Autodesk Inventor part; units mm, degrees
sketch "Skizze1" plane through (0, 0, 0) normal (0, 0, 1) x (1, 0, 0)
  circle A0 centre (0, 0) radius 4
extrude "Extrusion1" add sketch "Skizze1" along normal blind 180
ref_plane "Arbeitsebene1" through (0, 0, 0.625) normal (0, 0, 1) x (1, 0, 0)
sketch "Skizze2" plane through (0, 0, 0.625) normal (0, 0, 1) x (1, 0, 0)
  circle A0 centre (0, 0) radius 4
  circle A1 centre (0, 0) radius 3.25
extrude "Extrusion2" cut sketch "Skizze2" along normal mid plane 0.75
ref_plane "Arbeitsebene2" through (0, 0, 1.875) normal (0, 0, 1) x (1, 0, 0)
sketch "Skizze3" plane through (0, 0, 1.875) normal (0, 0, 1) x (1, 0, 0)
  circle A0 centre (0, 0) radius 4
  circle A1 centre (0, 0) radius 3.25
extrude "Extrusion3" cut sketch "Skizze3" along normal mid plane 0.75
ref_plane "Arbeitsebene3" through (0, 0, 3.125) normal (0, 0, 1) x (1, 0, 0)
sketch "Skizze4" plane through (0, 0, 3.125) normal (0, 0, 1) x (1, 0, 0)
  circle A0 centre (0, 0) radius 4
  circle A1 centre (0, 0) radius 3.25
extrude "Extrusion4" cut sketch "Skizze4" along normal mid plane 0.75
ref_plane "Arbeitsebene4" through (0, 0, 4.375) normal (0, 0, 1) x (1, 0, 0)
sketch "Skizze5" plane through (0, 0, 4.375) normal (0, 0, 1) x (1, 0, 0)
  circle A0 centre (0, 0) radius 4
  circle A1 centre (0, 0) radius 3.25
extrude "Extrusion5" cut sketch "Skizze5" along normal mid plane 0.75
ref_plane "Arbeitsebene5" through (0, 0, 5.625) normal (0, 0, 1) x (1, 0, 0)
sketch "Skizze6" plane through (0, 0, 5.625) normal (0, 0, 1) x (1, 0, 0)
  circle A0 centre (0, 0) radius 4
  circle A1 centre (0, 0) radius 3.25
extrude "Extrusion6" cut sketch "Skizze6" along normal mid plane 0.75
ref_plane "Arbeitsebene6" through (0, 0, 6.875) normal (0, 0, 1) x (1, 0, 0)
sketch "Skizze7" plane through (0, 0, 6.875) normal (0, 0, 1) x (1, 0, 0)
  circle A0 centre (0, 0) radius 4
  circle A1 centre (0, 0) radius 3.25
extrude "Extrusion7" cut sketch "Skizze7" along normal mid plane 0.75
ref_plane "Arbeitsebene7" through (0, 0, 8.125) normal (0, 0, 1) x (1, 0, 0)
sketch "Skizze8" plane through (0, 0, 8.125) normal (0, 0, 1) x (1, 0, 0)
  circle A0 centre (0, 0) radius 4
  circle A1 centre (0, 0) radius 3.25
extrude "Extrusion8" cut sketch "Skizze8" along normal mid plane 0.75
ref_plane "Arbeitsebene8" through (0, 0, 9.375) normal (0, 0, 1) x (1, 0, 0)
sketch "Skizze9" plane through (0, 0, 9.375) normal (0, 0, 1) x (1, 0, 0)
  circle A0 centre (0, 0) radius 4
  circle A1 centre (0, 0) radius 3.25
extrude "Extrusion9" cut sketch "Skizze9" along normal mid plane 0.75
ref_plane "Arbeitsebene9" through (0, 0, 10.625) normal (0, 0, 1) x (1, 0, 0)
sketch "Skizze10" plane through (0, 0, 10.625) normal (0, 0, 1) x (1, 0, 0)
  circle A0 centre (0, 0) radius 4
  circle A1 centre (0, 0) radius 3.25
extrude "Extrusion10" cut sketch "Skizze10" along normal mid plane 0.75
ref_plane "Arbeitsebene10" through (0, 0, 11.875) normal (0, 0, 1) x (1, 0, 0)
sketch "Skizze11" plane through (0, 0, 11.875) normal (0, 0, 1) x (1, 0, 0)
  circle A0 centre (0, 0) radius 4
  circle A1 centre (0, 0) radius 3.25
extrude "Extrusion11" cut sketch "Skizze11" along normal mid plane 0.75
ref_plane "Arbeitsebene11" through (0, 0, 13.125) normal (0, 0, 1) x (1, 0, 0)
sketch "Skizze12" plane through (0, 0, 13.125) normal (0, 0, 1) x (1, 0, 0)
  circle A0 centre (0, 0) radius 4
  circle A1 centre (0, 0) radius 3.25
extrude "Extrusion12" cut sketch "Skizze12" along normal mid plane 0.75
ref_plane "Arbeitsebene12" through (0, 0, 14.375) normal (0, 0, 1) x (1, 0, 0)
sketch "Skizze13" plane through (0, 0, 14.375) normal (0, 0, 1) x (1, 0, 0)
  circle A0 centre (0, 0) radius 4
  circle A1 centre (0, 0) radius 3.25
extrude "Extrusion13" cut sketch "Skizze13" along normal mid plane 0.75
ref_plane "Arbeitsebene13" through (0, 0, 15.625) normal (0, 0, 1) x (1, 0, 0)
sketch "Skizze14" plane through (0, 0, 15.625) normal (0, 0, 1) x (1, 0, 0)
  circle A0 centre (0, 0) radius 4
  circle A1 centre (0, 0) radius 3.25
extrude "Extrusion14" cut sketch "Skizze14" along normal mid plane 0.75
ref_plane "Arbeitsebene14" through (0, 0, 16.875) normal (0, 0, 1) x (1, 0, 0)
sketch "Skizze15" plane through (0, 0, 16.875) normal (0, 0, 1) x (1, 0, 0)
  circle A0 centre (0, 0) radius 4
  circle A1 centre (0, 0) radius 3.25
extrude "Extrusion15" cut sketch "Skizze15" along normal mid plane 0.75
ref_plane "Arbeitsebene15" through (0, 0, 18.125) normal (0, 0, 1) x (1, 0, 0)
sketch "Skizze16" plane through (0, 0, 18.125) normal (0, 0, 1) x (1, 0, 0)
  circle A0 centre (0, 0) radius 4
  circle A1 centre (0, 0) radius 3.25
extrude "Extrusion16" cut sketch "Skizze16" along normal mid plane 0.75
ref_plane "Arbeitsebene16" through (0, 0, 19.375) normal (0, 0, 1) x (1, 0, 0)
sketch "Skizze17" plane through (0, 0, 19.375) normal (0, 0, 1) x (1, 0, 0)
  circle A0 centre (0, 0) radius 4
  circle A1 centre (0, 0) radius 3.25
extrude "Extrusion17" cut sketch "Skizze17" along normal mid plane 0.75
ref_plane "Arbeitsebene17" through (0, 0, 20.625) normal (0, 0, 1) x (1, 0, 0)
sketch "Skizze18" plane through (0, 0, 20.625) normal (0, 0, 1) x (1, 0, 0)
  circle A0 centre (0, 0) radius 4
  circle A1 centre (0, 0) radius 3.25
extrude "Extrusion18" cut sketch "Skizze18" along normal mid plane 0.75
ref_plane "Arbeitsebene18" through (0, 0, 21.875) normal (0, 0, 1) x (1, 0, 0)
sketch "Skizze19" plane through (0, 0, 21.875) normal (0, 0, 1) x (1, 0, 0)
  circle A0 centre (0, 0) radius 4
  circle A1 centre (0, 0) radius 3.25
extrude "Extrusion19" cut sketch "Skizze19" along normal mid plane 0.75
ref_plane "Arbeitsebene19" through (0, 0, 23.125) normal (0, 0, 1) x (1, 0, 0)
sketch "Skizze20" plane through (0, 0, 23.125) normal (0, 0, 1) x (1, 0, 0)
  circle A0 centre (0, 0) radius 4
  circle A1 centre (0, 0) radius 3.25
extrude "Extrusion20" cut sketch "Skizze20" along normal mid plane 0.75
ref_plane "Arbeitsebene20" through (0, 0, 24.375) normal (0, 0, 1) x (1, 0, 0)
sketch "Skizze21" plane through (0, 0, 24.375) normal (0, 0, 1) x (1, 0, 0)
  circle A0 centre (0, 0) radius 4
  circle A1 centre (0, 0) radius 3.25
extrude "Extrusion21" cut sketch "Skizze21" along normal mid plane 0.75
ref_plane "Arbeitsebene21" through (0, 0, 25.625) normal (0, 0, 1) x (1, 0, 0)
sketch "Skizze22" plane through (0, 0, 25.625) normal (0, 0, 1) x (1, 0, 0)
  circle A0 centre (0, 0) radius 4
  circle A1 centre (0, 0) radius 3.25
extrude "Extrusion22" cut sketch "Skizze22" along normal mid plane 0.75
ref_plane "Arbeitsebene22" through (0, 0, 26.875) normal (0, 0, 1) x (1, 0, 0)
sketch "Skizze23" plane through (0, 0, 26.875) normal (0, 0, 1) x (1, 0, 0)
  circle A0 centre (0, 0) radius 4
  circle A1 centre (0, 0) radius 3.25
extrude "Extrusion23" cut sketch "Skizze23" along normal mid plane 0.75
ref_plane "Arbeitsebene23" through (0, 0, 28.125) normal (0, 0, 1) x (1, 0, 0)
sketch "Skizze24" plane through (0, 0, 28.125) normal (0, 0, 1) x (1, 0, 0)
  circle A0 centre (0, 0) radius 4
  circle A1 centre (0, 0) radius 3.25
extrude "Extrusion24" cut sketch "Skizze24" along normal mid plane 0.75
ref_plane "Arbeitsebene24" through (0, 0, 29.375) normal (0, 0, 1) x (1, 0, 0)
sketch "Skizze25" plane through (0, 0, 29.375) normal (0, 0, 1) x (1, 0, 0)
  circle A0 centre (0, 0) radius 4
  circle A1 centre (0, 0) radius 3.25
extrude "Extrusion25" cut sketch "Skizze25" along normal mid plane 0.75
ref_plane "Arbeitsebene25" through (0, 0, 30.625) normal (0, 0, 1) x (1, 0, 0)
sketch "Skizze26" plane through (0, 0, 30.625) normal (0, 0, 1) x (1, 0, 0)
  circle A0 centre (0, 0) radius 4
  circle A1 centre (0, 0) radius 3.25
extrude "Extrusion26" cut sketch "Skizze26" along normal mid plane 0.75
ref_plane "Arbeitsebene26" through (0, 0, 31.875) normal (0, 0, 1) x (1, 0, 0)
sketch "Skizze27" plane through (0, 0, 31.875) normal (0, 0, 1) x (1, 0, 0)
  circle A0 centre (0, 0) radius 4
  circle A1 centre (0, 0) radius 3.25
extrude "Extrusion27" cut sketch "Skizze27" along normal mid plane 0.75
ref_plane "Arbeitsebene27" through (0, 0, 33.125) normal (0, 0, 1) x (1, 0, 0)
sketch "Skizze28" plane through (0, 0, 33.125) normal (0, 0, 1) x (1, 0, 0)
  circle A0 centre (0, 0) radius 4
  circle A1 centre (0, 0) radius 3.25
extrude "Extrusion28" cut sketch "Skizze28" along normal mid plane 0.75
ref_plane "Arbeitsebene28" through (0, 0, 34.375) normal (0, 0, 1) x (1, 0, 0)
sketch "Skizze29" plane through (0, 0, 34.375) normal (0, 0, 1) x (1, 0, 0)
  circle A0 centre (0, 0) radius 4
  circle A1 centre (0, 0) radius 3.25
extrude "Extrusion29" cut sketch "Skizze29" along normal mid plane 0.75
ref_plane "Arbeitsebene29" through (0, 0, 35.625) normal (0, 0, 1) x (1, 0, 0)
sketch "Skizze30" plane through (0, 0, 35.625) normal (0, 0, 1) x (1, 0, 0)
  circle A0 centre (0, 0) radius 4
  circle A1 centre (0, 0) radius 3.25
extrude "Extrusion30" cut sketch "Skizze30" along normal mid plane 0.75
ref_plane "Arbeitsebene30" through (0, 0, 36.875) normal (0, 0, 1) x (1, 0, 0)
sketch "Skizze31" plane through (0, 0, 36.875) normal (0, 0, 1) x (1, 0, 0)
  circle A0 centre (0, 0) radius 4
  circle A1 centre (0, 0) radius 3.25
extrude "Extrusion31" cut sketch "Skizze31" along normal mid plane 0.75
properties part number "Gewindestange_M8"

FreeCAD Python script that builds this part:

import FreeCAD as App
import Part
import Sketcher

doc = App.newDocument("Part")
body = doc.addObject("PartDesign::Body", "Body")

sketch1 = body.newObject("Sketcher::SketchObject", "Sketch")
sketch1.AttachmentSupport = (doc.getObject("XY_Plane"), [""])
sketch1.MapMode = "FlatFace"
sketch1.addGeometry(Part.Circle(App.Vector(0, 0, 0), App.Vector(0, 0, 1), 4), False)
sketch1.addConstraint([
    Sketcher.Constraint("Coincident", 0, 3, -1, 1),
    Sketcher.Constraint("Diameter", 0, 8.0),
])
pad1 = body.newObject("PartDesign::Pad", "Pad")
pad1.Profile = sketch1
pad1.Length = 180

sketch2 = body.newObject("Sketcher::SketchObject", "Sketch001")
sketch2.AttachmentSupport = (doc.getObject("XY_Plane"), [""])
sketch2.MapMode = "FlatFace"
sketch2.AttachmentOffset = App.Placement(App.Vector(0, 0, 0.625), App.Rotation())
sketch2.addGeometry([
    Part.Circle(App.Vector(0, 0, 0), App.Vector(0, 0, 1), 4),
    Part.Circle(App.Vector(0, 0, 0), App.Vector(0, 0, 1), 3.2),
], False)
sketch2.addConstraint([
    Sketcher.Constraint("Coincident", 0, 3, -1, 1),
    Sketcher.Constraint("Coincident", 1, 3, -1, 1),
    Sketcher.Constraint("Diameter", 0, 8.0),
    Sketcher.Constraint("Diameter", 1, 6.5),
])
pocket1 = body.newObject("PartDesign::Pocket", "Pocket")
pocket1.Profile = sketch2
pocket1.Length = 0.75
pocket1.Midplane = True

sketch3 = body.newObject("Sketcher::SketchObject", "Sketch002")
sketch3.AttachmentSupport = (doc.getObject("XY_Plane"), [""])
sketch3.MapMode = "FlatFace"
sketch3.AttachmentOffset = App.Placement(App.Vector(0, 0, 1.875), App.Rotation())
sketch3.addGeometry([
    Part.Circle(App.Vector(0, 0, 0), App.Vector(0, 0, 1), 4),
    Part.Circle(App.Vector(0, 0, 0), App.Vector(0, 0, 1), 3.2),
], False)
sketch3.addConstraint([
    Sketcher.Constraint("Coincident", 0, 3, -1, 1),
    Sketcher.Constraint("Coincident", 1, 3, -1, 1),
    Sketcher.Constraint("Diameter", 0, 8.0),
    Sketcher.Constraint("Diameter", 1, 6.5),
])
pocket2 = body.newObject("PartDesign::Pocket", "Pocket001")
pocket2.Profile = sketch3
pocket2.Length = 0.75
pocket2.Midplane = True

sketch4 = body.newObject("Sketcher::SketchObject", "Sketch003")
sketch4.AttachmentSupport = (doc.getObject("XY_Plane"), [""])
sketch4.MapMode = "FlatFace"
sketch4.AttachmentOffset = App.Placement(App.Vector(0, 0, 3.125), App.Rotation())
sketch4.addGeometry([
    Part.Circle(App.Vector(0, 0, 0), App.Vector(0, 0, 1), 4),
    Part.Circle(App.Vector(0, 0, 0), App.Vector(0, 0, 1), 3.2),
], False)
sketch4.addConstraint([
    Sketcher.Constraint("Coincident", 0, 3, -1, 1),
    Sketcher.Constraint("Coincident", 1, 3, -1, 1),
    Sketcher.Constraint("Diameter", 0, 8.0),
    Sketcher.Constraint("Diameter", 1, 6.5),
])
pocket3 = body.newObject("PartDesign::Pocket", "Pocket002")
pocket3.Profile = sketch4
pocket3.Length = 0.75
pocket3.Midplane = True

sketch5 = body.newObject("Sketcher::SketchObject", "Sketch004")
sketch5.AttachmentSupport = (doc.getObject("XY_Plane"), [""])
sketch5.MapMode = "FlatFace"
sketch5.AttachmentOffset = App.Placement(App.Vector(0, 0, 4.375), App.Rotation())
sketch5.addGeometry([
    Part.Circle(App.Vector(0, 0, 0), App.Vector(0, 0, 1), 4),
    Part.Circle(App.Vector(0, 0, 0), App.Vector(0, 0, 1), 3.2),
], False)
sketch5.addConstraint([
    Sketcher.Constraint("Coincident", 0, 3, -1, 1),
    Sketcher.Constraint("Coincident", 1, 3, -1, 1),
    Sketcher.Constraint("Diameter", 0, 8.0),
    Sketcher.Constraint("Diameter", 1, 6.5),
])
pocket4 = body.newObject("PartDesign::Pocket", "Pocket003")
pocket4.Profile = sketch5
pocket4.Length = 0.75
pocket4.Midplane = True

sketch6 = body.newObject("Sketcher::SketchObject", "Sketch005")
sketch6.AttachmentSupport = (doc.getObject("XY_Plane"), [""])
sketch6.MapMode = "FlatFace"
sketch6.AttachmentOffset = App.Placement(App.Vector(0, 0, 5.625), App.Rotation())
sketch6.addGeometry([
    Part.Circle(App.Vector(0, 0, 0), App.Vector(0, 0, 1), 4),
    Part.Circle(App.Vector(0, 0, 0), App.Vector(0, 0, 1), 3.2),
], False)
sketch6.addConstraint([
    Sketcher.Constraint("Coincident", 0, 3, -1, 1),
    Sketcher.Constraint("Coincident", 1, 3, -1, 1),
    Sketcher.Constraint("Diameter", 0, 8.0),
    Sketcher.Constraint("Diameter", 1, 6.5),
])
pocket5 = body.newObject("PartDesign::Pocket", "Pocket004")
pocket5.Profile = sketch6
pocket5.Length = 0.75
pocket5.Midplane = True

sketch7 = body.newObject("Sketcher::SketchObject", "Sketch006")
sketch7.AttachmentSupport = (doc.getObject("XY_Plane"), [""])
sketch7.MapMode = "FlatFace"
sketch7.AttachmentOffset = App.Placement(App.Vector(0, 0, 6.875), App.Rotation())
sketch7.addGeometry([
    Part.Circle(App.Vector(0, 0, 0), App.Vector(0, 0, 1), 4),
    Part.Circle(App.Vector(0, 0, 0), App.Vector(0, 0, 1), 3.2),
], False)
sketch7.addConstraint([
    Sketcher.Constraint("Coincident", 0, 3, -1, 1),
    Sketcher.Constraint("Coincident", 1, 3, -1, 1),
    Sketcher.Constraint("Diameter", 0, 8.0),
    Sketcher.Constraint("Diameter", 1, 6.5),
])
pocket6 = body.newObject("PartDesign::Pocket", "Pocket005")
pocket6.Profile = sketch7
pocket6.Length = 0.75
pocket6.Midplane = True

sketch8 = body.newObject("Sketcher::SketchObject", "Sketch007")
sketch8.AttachmentSupport = (doc.getObject("XY_Plane"), [""])
sketch8.MapMode = "FlatFace"
sketch8.AttachmentOffset = App.Placement(App.Vector(0, 0, 8.125), App.Rotation())
sketch8.addGeometry([
    Part.Circle(App.Vector(0, 0, 0), App.Vector(0, 0, 1), 4),
    Part.Circle(App.Vector(0, 0, 0), App.Vector(0, 0, 1), 3.2),
], False)
sketch8.addConstraint([
    Sketcher.Constraint("Coincident", 0, 3, -1, 1),
    Sketcher.Constraint("Coincident", 1, 3, -1, 1),
    Sketcher.Constraint("Diameter", 0, 8.0),
    Sketcher.Constraint("Diameter", 1, 6.5),
])
pocket7 = body.newObject("PartDesign::Pocket", "Pocket006")
pocket7.Profile = sketch8
pocket7.Length = 0.75
pocket7.Midplane = True

sketch9 = body.newObject("Sketcher::SketchObject", "Sketch008")
sketch9.AttachmentSupport = (doc.getObject("XY_Plane"), [""])
sketch9.MapMode = "FlatFace"
sketch9.AttachmentOffset = App.Placement(App.Vector(0, 0, 9.375), App.Rotation())
sketch9.addGeometry([
    Part.Circle(App.Vector(0, 0, 0), App.Vector(0, 0, 1), 4),
    Part.Circle(App.Vector(0, 0, 0), App.Vector(0, 0, 1), 3.2),
], False)
sketch9.addConstraint([
    Sketcher.Constraint("Coincident", 0, 3, -1, 1),
    Sketcher.Constraint("Coincident", 1, 3, -1, 1),
    Sketcher.Constraint("Diameter", 0, 8.0),
    Sketcher.Constraint("Diameter", 1, 6.5),
])
pocket8 = body.newObject("PartDesign::Pocket", "Pocket007")
pocket8.Profile = sketch9
pocket8.Length = 0.75
pocket8.Midplane = True

sketch10 = body.newObject("Sketcher::SketchObject", "Sketch009")
sketch10.AttachmentSupport = (doc.getObject("XY_Plane"), [""])
sketch10.MapMode = "FlatFace"
sketch10.AttachmentOffset = App.Placement(App.Vector(0, 0, 10.625), App.Rotation())
sketch10.addGeometry([
    Part.Circle(App.Vector(0, 0, 0), App.Vector(0, 0, 1), 4),
    Part.Circle(App.Vector(0, 0, 0), App.Vector(0, 0, 1), 3.2),
], False)
sketch10.addConstraint([
    Sketcher.Constraint("Coincident", 0, 3, -1, 1),
    Sketcher.Constraint("Coincident", 1, 3, -1, 1),
    Sketcher.Constraint("Diameter", 0, 8.0),
    Sketcher.Constraint("Diameter", 1, 6.5),
])
pocket9 = body.newObject("PartDesign::Pocket", "Pocket008")
pocket9.Profile = sketch10
pocket9.Length = 0.75
pocket9.Midplane = True

sketch11 = body.newObject("Sketcher::SketchObject", "Sketch010")
sketch11.AttachmentSupport = (doc.getObject("XY_Plane"), [""])
sketch11.MapMode = "FlatFace"
sketch11.AttachmentOffset = App.Placement(App.Vector(0, 0, 11.875), App.Rotation())
sketch11.addGeometry([
    Part.Circle(App.Vector(0, 0, 0), App.Vector(0, 0, 1), 4),
    Part.Circle(App.Vector(0, 0, 0), App.Vector(0, 0, 1), 3.2),
], False)
sketch11.addConstraint([
    Sketcher.Constraint("Coincident", 0, 3, -1, 1),
    Sketcher.Constraint("Coincident", 1, 3, -1, 1),
    Sketcher.Constraint("Diameter", 0, 8.0),
    Sketcher.Constraint("Diameter", 1, 6.5),
])
pocket10 = body.newObject("PartDesign::Pocket", "Pocket009")
pocket10.Profile = sketch11
pocket10.Length = 0.75
pocket10.Midplane = True

sketch12 = body.newObject("Sketcher::SketchObject", "Sketch011")
sketch12.AttachmentSupport = (doc.getObject("XY_Plane"), [""])
sketch12.MapMode = "FlatFace"
sketch12.AttachmentOffset = App.Placement(App.Vector(0, 0, 13.125), App.Rotation())
sketch12.addGeometry([
    Part.Circle(App.Vector(0, 0, 0), App.Vector(0, 0, 1), 4),
    Part.Circle(App.Vector(0, 0, 0), App.Vector(0, 0, 1), 3.2),
], False)
sketch12.addConstraint([
    Sketcher.Constraint("Coincident", 0, 3, -1, 1),
    Sketcher.Constraint("Coincident", 1, 3, -1, 1),
    Sketcher.Constraint("Diameter", 0, 8.0),
    Sketcher.Constraint("Diameter", 1, 6.5),
])
pocket11 = body.newObject("PartDesign::Pocket", "Pocket010")
pocket11.Profile = sketch12
pocket11.Length = 0.75
pocket11.Midplane = True

sketch13 = body.newObject("Sketcher::SketchObject", "Sketch012")
sketch13.AttachmentSupport = (doc.getObject("XY_Plane"), [""])
sketch13.MapMode = "FlatFace"
sketch13.AttachmentOffset = App.Placement(App.Vector(0, 0, 14.375), App.Rotation())
sketch13.addGeometry([
    Part.Circle(App.Vector(0, 0, 0), App.Vector(0, 0, 1), 4),
    Part.Circle(App.Vector(0, 0, 0), App.Vector(0, 0, 1), 3.2),
], False)
sketch13.addConstraint([
    Sketcher.Constraint("Coincident", 0, 3, -1, 1),
    Sketcher.Constraint("Coincident", 1, 3, -1, 1),
    Sketcher.Constraint("Diameter", 0, 8.0),
    Sketcher.Constraint("Diameter", 1, 6.5),
])
pocket12 = body.newObject("PartDesign::Pocket", "Pocket011")
pocket12.Profile = sketch13
pocket12.Length = 0.75
pocket12.Midplane = True

sketch14 = body.newObject("Sketcher::SketchObject", "Sketch013")
sketch14.AttachmentSupport = (doc.getObject("XY_Plane"), [""])
sketch14.MapMode = "FlatFace"
sketch14.AttachmentOffset = App.Placement(App.Vector(0, 0, 15.625), App.Rotation())
sketch14.addGeometry([
    Part.Circle(App.Vector(0, 0, 0), App.Vector(0, 0, 1), 4),
    Part.Circle(App.Vector(0, 0, 0), App.Vector(0, 0, 1), 3.2),
], False)
sketch14.addConstraint([
    Sketcher.Constraint("Coincident", 0, 3, -1, 1),
    Sketcher.Constraint("Coincident", 1, 3, -1, 1),
    Sketcher.Constraint("Diameter", 0, 8.0),
    Sketcher.Constraint("Diameter", 1, 6.5),
])
pocket13 = body.newObject("PartDesign::Pocket", "Pocket012")
pocket13.Profile = sketch14
pocket13.Length = 0.75
pocket13.Midplane = True

sketch15 = body.newObject("Sketcher::SketchObject", "Sketch014")
sketch15.AttachmentSupport = (doc.getObject("XY_Plane"), [""])
sketch15.MapMode = "FlatFace"
sketch15.AttachmentOffset = App.Placement(App.Vector(0, 0, 16.875), App.Rotation())
sketch15.addGeometry([
    Part.Circle(App.Vector(0, 0, 0), App.Vector(0, 0, 1), 4),
    Part.Circle(App.Vector(0, 0, 0), App.Vector(0, 0, 1), 3.2),
], False)
sketch15.addConstraint([
    Sketcher.Constraint("Coincident", 0, 3, -1, 1),
    Sketcher.Constraint("Coincident", 1, 3, -1, 1),
    Sketcher.Constraint("Diameter", 0, 8.0),
    Sketcher.Constraint("Diameter", 1, 6.5),
])
pocket14 = body.newObject("PartDesign::Pocket", "Pocket013")
pocket14.Profile = sketch15
pocket14.Length = 0.75
pocket14.Midplane = True

sketch16 = body.newObject("Sketcher::SketchObject", "Sketch015")
sketch16.AttachmentSupport = (doc.getObject("XY_Plane"), [""])
sketch16.MapMode = "FlatFace"
sketch16.AttachmentOffset = App.Placement(App.Vector(0, 0, 18.125), App.Rotation())
sketch16.addGeometry([
    Part.Circle(App.Vector(0, 0, 0), App.Vector(0, 0, 1), 4),
    Part.Circle(App.Vector(0, 0, 0), App.Vector(0, 0, 1), 3.2),
], False)
sketch16.addConstraint([
    Sketcher.Constraint("Coincident", 0, 3, -1, 1),
    Sketcher.Constraint("Coincident", 1, 3, -1, 1),
    Sketcher.Constraint("Diameter", 0, 8.0),
    Sketcher.Constraint("Diameter", 1, 6.5),
])
pocket15 = body.newObject("PartDesign::Pocket", "Pocket014")
pocket15.Profile = sketch16
pocket15.Length = 0.75
pocket15.Midplane = True

sketch17 = body.newObject("Sketcher::SketchObject", "Sketch016")
sketch17.AttachmentSupport = (doc.getObject("XY_Plane"), [""])
sketch17.MapMode = "FlatFace"
sketch17.AttachmentOffset = App.Placement(App.Vector(0, 0, 19.375), App.Rotation())
sketch17.addGeometry([
    Part.Circle(App.Vector(0, 0, 0), App.Vector(0, 0, 1), 4),
    Part.Circle(App.Vector(0, 0, 0), App.Vector(0, 0, 1), 3.2),
], False)
sketch17.addConstraint([
    Sketcher.Constraint("Coincident", 0, 3, -1, 1),
    Sketcher.Constraint("Coincident", 1, 3, -1, 1),
    Sketcher.Constraint("Diameter", 0, 8.0),
    Sketcher.Constraint("Diameter", 1, 6.5),
])
pocket16 = body.newObject("PartDesign::Pocket", "Pocket015")
pocket16.Profile = sketch17
pocket16.Length = 0.75
pocket16.Midplane = True

sketch18 = body.newObject("Sketcher::SketchObject", "Sketch017")
sketch18.AttachmentSupport = (doc.getObject("XY_Plane"), [""])
sketch18.MapMode = "FlatFace"
sketch18.AttachmentOffset = App.Placement(App.Vector(0, 0, 20.625), App.Rotation())
sketch18.addGeometry([
    Part.Circle(App.Vector(0, 0, 0), App.Vector(0, 0, 1), 4),
    Part.Circle(App.Vector(0, 0, 0), App.Vector(0, 0, 1), 3.2),
], False)
sketch18.addConstraint([
    Sketcher.Constraint("Coincident", 0, 3, -1, 1),
    Sketcher.Constraint("Coincident", 1, 3, -1, 1),
    Sketcher.Constraint("Diameter", 0, 8.0),
    Sketcher.Constraint("Diameter", 1, 6.5),
])
pocket17 = body.newObject("PartDesign::Pocket", "Pocket016")
pocket17.Profile = sketch18
pocket17.Length = 0.75
pocket17.Midplane = True

sketch19 = body.newObject("Sketcher::SketchObject", "Sketch018")
sketch19.AttachmentSupport = (doc.getObject("XY_Plane"), [""])
sketch19.MapMode = "FlatFace"
sketch19.AttachmentOffset = App.Placement(App.Vector(0, 0, 21.875), App.Rotation())
sketch19.addGeometry([
    Part.Circle(App.Vector(0, 0, 0), App.Vector(0, 0, 1), 4),
    Part.Circle(App.Vector(0, 0, 0), App.Vector(0, 0, 1), 3.2),
], False)
sketch19.addConstraint([
    Sketcher.Constraint("Coincident", 0, 3, -1, 1),
    Sketcher.Constraint("Coincident", 1, 3, -1, 1),
    Sketcher.Constraint("Diameter", 0, 8.0),
    Sketcher.Constraint("Diameter", 1, 6.5),
])
pocket18 = body.newObject("PartDesign::Pocket", "Pocket017")
pocket18.Profile = sketch19
pocket18.Length = 0.75
pocket18.Midplane = True

sketch20 = body.newObject("Sketcher::SketchObject", "Sketch019")
sketch20.AttachmentSupport = (doc.getObject("XY_Plane"), [""])
sketch20.MapMode = "FlatFace"
sketch20.AttachmentOffset = App.Placement(App.Vector(0, 0, 23.125), App.Rotation())
sketch20.addGeometry([
    Part.Circle(App.Vector(0, 0, 0), App.Vector(0, 0, 1), 4),
    Part.Circle(App.Vector(0, 0, 0), App.Vector(0, 0, 1), 3.2),
], False)
sketch20.addConstraint([
    Sketcher.Constraint("Coincident", 0, 3, -1, 1),
    Sketcher.Constraint("Coincident", 1, 3, -1, 1),
    Sketcher.Constraint("Diameter", 0, 8.0),
    Sketcher.Constraint("Diameter", 1, 6.5),
])
pocket19 = body.newObject("PartDesign::Pocket", "Pocket018")
pocket19.Profile = sketch20
pocket19.Length = 0.75
pocket19.Midplane = True

sketch21 = body.newObject("Sketcher::SketchObject", "Sketch020")
sketch21.AttachmentSupport = (doc.getObject("XY_Plane"), [""])
sketch21.MapMode = "FlatFace"
sketch21.AttachmentOffset = App.Placement(App.Vector(0, 0, 24.375), App.Rotation())
sketch21.addGeometry([
    Part.Circle(App.Vector(0, 0, 0), App.Vector(0, 0, 1), 4),
    Part.Circle(App.Vector(0, 0, 0), App.Vector(0, 0, 1), 3.2),
], False)
sketch21.addConstraint([
    Sketcher.Constraint("Coincident", 0, 3, -1, 1),
    Sketcher.Constraint("Coincident", 1, 3, -1, 1),
    Sketcher.Constraint("Diameter", 0, 8.0),
    Sketcher.Constraint("Diameter", 1, 6.5),
])
pocket20 = body.newObject("PartDesign::Pocket", "Pocket019")
pocket20.Profile = sketch21
pocket20.Length = 0.75
pocket20.Midplane = True

sketch22 = body.newObject("Sketcher::SketchObject", "Sketch021")
sketch22.AttachmentSupport = (doc.getObject("XY_Plane"), [""])
sketch22.MapMode = "FlatFace"
sketch22.AttachmentOffset = App.Placement(App.Vector(0, 0, 25.625), App.Rotation())
sketch22.addGeometry([
    Part.Circle(App.Vector(0, 0, 0), App.Vector(0, 0, 1), 4),
    Part.Circle(App.Vector(0, 0, 0), App.Vector(0, 0, 1), 3.2),
], False)
sketch22.addConstraint([
    Sketcher.Constraint("Coincident", 0, 3, -1, 1),
    Sketcher.Constraint("Coincident", 1, 3, -1, 1),
    Sketcher.Constraint("Diameter", 0, 8.0),
    Sketcher.Constraint("Diameter", 1, 6.5),
])
pocket21 = body.newObject("PartDesign::Pocket", "Pocket020")
pocket21.Profile = sketch22
pocket21.Length = 0.75
pocket21.Midplane = True

sketch23 = body.newObject("Sketcher::SketchObject", "Sketch022")
sketch23.AttachmentSupport = (doc.getObject("XY_Plane"), [""])
sketch23.MapMode = "FlatFace"
sketch23.AttachmentOffset = App.Placement(App.Vector(0, 0, 26.875), App.Rotation())
sketch23.addGeometry([
    Part.Circle(App.Vector(0, 0, 0), App.Vector(0, 0, 1), 4),
    Part.Circle(App.Vector(0, 0, 0), App.Vector(0, 0, 1), 3.2),
], False)
sketch23.addConstraint([
    Sketcher.Constraint("Coincident", 0, 3, -1, 1),
    Sketcher.Constraint("Coincident", 1, 3, -1, 1),
    Sketcher.Constraint("Diameter", 0, 8.0),
    Sketcher.Constraint("Diameter", 1, 6.5),
])
pocket22 = body.newObject("PartDesign::Pocket", "Pocket021")
pocket22.Profile = sketch23
pocket22.Length = 0.75
pocket22.Midplane = True

sketch24 = body.newObject("Sketcher::SketchObject", "Sketch023")
sketch24.AttachmentSupport = (doc.getObject("XY_Plane"), [""])
sketch24.MapMode = "FlatFace"
sketch24.AttachmentOffset = App.Placement(App.Vector(0, 0, 28.125), App.Rotation())
sketch24.addGeometry([
    Part.Circle(App.Vector(0, 0, 0), App.Vector(0, 0, 1), 4),
    Part.Circle(App.Vector(0, 0, 0), App.Vector(0, 0, 1), 3.2),
], False)
sketch24.addConstraint([
    Sketcher.Constraint("Coincident", 0, 3, -1, 1),
    Sketcher.Constraint("Coincident", 1, 3, -1, 1),
    Sketcher.Constraint("Diameter", 0, 8.0),
    Sketcher.Constraint("Diameter", 1, 6.5),
])
pocket23 = body.newObject("PartDesign::Pocket", "Pocket022")
pocket23.Profile = sketch24
pocket23.Length = 0.75
pocket23.Midplane = True

sketch25 = body.newObject("Sketcher::SketchObject", "Sketch024")
sketch25.AttachmentSupport = (doc.getObject("XY_Plane"), [""])
sketch25.MapMode = "FlatFace"
sketch25.AttachmentOffset = App.Placement(App.Vector(0, 0, 29.375), App.Rotation())
sketch25.addGeometry([
    Part.Circle(App.Vector(0, 0, 0), App.Vector(0, 0, 1), 4),
    Part.Circle(App.Vector(0, 0, 0), App.Vector(0, 0, 1), 3.2),
], False)
sketch25.addConstraint([
    Sketcher.Constraint("Coincident", 0, 3, -1, 1),
    Sketcher.Constraint("Coincident", 1, 3, -1, 1),
    Sketcher.Constraint("Diameter", 0, 8.0),
    Sketcher.Constraint("Diameter", 1, 6.5),
])
pocket24 = body.newObject("PartDesign::Pocket", "Pocket023")
pocket24.Profile = sketch25
pocket24.Length = 0.75
pocket24.Midplane = True

sketch26 = body.newObject("Sketcher::SketchObject", "Sketch025")
sketch26.AttachmentSupport = (doc.getObject("XY_Plane"), [""])
sketch26.MapMode = "FlatFace"
sketch26.AttachmentOffset = App.Placement(App.Vector(0, 0, 30.625), App.Rotation())
sketch26.addGeometry([
    Part.Circle(App.Vector(0, 0, 0), App.Vector(0, 0, 1), 4),
    Part.Circle(App.Vector(0, 0, 0), App.Vector(0, 0, 1), 3.2),
], False)
sketch26.addConstraint([
    Sketcher.Constraint("Coincident", 0, 3, -1, 1),
    Sketcher.Constraint("Coincident", 1, 3, -1, 1),
    Sketcher.Constraint("Diameter", 0, 8.0),
    Sketcher.Constraint("Diameter", 1, 6.5),
])
pocket25 = body.newObject("PartDesign::Pocket", "Pocket024")
pocket25.Profile = sketch26
pocket25.Length = 0.75
pocket25.Midplane = True

sketch27 = body.newObject("Sketcher::SketchObject", "Sketch026")
sketch27.AttachmentSupport = (doc.getObject("XY_Plane"), [""])
sketch27.MapMode = "FlatFace"
sketch27.AttachmentOffset = App.Placement(App.Vector(0, 0, 31.875), App.Rotation())
sketch27.addGeometry([
    Part.Circle(App.Vector(0, 0, 0), App.Vector(0, 0, 1), 4),
    Part.Circle(App.Vector(0, 0, 0), App.Vector(0, 0, 1), 3.2),
], False)
sketch27.addConstraint([
    Sketcher.Constraint("Coincident", 0, 3, -1, 1),
    Sketcher.Constraint("Coincident", 1, 3, -1, 1),
    Sketcher.Constraint("Diameter", 0, 8.0),
    Sketcher.Constraint("Diameter", 1, 6.5),
])
pocket26 = body.newObject("PartDesign::Pocket", "Pocket025")
pocket26.Profile = sketch27
pocket26.Length = 0.75
pocket26.Midplane = True

sketch28 = body.newObject("Sketcher::SketchObject", "Sketch027")
sketch28.AttachmentSupport = (doc.getObject("XY_Plane"), [""])
sketch28.MapMode = "FlatFace"
sketch28.AttachmentOffset = App.Placement(App.Vector(0, 0, 33.125), App.Rotation())
sketch28.addGeometry([
    Part.Circle(App.Vector(0, 0, 0), App.Vector(0, 0, 1), 4),
    Part.Circle(App.Vector(0, 0, 0), App.Vector(0, 0, 1), 3.2),
], False)
sketch28.addConstraint([
    Sketcher.Constraint("Coincident", 0, 3, -1, 1),
    Sketcher.Constraint("Coincident", 1, 3, -1, 1),
    Sketcher.Constraint("Diameter", 0, 8.0),
    Sketcher.Constraint("Diameter", 1, 6.5),
])
pocket27 = body.newObject("PartDesign::Pocket", "Pocket026")
pocket27.Profile = sketch28
pocket27.Length = 0.75
pocket27.Midplane = True

sketch29 = body.newObject("Sketcher::SketchObject", "Sketch028")
sketch29.AttachmentSupport = (doc.getObject("XY_Plane"), [""])
sketch29.MapMode = "FlatFace"
sketch29.AttachmentOffset = App.Placement(App.Vector(0, 0, 34.375), App.Rotation())
sketch29.addGeometry([
    Part.Circle(App.Vector(0, 0, 0), App.Vector(0, 0, 1), 4),
    Part.Circle(App.Vector(0, 0, 0), App.Vector(0, 0, 1), 3.2),
], False)
sketch29.addConstraint([
    Sketcher.Constraint("Coincident", 0, 3, -1, 1),
    Sketcher.Constraint("Coincident", 1, 3, -1, 1),
    Sketcher.Constraint("Diameter", 0, 8.0),
    Sketcher.Constraint("Diameter", 1, 6.5),
])
pocket28 = body.newObject("PartDesign::Pocket", "Pocket027")
pocket28.Profile = sketch29
pocket28.Length = 0.75
pocket28.Midplane = True

sketch30 = body.newObject("Sketcher::SketchObject", "Sketch029")
sketch30.AttachmentSupport = (doc.getObject("XY_Plane"), [""])
sketch30.MapMode = "FlatFace"
sketch30.AttachmentOffset = App.Placement(App.Vector(0, 0, 35.625), App.Rotation())
sketch30.addGeometry([
    Part.Circle(App.Vector(0, 0, 0), App.Vector(0, 0, 1), 4),
    Part.Circle(App.Vector(0, 0, 0), App.Vector(0, 0, 1), 3.2),
], False)
sketch30.addConstraint([
    Sketcher.Constraint("Coincident", 0, 3, -1, 1),
    Sketcher.Constraint("Coincident", 1, 3, -1, 1),
    Sketcher.Constraint("Diameter", 0, 8.0),
    Sketcher.Constraint("Diameter", 1, 6.5),
])
pocket29 = body.newObject("PartDesign::Pocket", "Pocket028")
pocket29.Profile = sketch30
pocket29.Length = 0.75
pocket29.Midplane = True

sketch31 = body.newObject("Sketcher::SketchObject", "Sketch030")
sketch31.AttachmentSupport = (doc.getObject("XY_Plane"), [""])
sketch31.MapMode = "FlatFace"
sketch31.AttachmentOffset = App.Placement(App.Vector(0, 0, 36.875), App.Rotation())
sketch31.addGeometry([
    Part.Circle(App.Vector(0, 0, 0), App.Vector(0, 0, 1), 4),
    Part.Circle(App.Vector(0, 0, 0), App.Vector(0, 0, 1), 3.2),
], False)
sketch31.addConstraint([
    Sketcher.Constraint("Coincident", 0, 3, -1, 1),
    Sketcher.Constraint("Coincident", 1, 3, -1, 1),
    Sketcher.Constraint("Diameter", 0, 8.0),
    Sketcher.Constraint("Diameter", 1, 6.5),
])
pocket30 = body.newObject("PartDesign::Pocket", "Pocket029")
pocket30.Profile = sketch31
pocket30.Length = 0.75
pocket30.Midplane = True

doc.recompute()
